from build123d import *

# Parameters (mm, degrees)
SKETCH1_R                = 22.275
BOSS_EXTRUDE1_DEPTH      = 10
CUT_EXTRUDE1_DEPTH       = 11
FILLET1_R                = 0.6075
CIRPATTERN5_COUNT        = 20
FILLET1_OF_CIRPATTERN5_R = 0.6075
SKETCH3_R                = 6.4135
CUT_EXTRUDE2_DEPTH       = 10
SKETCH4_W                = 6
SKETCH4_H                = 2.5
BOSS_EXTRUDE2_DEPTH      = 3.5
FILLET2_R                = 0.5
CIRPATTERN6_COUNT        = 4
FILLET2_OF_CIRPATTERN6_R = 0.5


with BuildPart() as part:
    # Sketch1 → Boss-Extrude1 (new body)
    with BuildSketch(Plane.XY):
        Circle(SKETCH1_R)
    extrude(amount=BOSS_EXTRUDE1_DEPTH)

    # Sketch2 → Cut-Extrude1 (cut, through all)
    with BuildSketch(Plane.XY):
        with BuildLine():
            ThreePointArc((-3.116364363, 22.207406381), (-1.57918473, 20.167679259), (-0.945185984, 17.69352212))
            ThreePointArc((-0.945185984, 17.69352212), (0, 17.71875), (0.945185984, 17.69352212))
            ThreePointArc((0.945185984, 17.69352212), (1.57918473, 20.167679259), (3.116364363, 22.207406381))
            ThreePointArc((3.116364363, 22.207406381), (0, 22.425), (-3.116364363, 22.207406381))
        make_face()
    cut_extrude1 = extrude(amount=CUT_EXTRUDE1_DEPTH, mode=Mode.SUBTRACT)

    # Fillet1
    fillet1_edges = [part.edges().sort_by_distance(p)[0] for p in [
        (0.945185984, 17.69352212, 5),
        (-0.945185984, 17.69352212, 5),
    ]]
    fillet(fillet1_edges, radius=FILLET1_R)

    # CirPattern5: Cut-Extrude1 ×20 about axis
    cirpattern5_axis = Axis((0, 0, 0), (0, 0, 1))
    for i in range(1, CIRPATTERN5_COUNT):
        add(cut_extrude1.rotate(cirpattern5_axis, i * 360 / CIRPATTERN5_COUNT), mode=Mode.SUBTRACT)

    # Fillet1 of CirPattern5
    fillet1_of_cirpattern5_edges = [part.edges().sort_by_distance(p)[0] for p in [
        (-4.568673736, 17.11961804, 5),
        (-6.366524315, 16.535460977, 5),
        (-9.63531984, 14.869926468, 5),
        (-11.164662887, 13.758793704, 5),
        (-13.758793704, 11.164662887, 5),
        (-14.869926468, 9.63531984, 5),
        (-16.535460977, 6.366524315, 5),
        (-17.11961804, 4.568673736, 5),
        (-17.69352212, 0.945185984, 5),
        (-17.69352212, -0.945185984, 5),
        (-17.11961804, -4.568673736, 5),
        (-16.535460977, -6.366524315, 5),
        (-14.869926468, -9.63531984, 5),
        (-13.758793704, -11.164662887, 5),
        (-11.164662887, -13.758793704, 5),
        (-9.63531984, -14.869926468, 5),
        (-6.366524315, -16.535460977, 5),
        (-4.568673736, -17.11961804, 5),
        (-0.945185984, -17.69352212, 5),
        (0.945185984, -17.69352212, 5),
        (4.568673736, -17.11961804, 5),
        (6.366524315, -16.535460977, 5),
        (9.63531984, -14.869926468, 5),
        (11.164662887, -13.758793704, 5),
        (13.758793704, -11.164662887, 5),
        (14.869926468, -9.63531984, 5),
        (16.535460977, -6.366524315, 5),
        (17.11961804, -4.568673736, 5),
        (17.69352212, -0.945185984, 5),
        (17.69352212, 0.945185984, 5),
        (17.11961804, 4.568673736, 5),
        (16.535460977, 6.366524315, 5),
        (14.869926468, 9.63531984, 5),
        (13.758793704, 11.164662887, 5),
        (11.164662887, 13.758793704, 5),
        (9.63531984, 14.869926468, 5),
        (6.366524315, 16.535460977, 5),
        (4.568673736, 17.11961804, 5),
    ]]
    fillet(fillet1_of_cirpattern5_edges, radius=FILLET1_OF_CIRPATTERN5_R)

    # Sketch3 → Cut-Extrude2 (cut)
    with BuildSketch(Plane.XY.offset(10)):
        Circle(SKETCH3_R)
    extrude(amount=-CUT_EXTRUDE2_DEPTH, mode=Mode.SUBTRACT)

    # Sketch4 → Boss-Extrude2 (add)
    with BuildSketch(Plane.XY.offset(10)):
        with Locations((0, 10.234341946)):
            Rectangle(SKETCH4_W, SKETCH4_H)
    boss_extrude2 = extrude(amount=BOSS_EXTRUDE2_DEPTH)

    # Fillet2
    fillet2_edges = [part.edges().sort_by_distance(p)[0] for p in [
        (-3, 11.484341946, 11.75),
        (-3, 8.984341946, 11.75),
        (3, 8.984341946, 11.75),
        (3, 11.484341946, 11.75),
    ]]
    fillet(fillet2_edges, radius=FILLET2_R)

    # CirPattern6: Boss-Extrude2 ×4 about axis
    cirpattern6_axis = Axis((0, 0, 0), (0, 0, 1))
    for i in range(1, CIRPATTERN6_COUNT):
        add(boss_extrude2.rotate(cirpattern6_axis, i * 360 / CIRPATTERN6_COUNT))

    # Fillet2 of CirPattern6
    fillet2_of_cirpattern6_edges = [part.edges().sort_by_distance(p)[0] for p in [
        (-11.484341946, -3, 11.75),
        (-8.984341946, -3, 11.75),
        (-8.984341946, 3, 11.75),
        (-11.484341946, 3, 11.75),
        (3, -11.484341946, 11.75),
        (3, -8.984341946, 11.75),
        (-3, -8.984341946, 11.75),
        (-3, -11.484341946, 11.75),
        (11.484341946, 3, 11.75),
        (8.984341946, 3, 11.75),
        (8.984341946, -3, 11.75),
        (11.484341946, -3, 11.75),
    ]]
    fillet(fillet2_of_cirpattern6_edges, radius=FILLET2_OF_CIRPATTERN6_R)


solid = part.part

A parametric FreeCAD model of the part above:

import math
import FreeCAD as App
import Part
import Sketcher
from FreeCAD import Vector
Q = App.Units.Quantity


def edges_at(feature, points):
    """Names of the edges that pass closest to the given points."""
    edges = feature.Shape.Edges
    near = lambda p: min(range(len(edges)), key=lambda i: edges[i].distToShape(Part.Vertex(*p))[0])
    return sorted({f"Edge{near(p) + 1}" for p in points})

doc = App.newDocument("Part")
body = doc.addObject("PartDesign::Body", "Body")

# Sketch on XY plane
sketch1 = body.newObject("Sketcher::SketchObject", "Sketch")
sketch1.AttachmentSupport = (doc.getObject("XY_Plane"), [""])
sketch1.MapMode = "FlatFace"
sketch1.addGeometry(Part.Circle(Vector(0, 0, 0), Vector(0, 0, 1), 22), False)
sketch1.addConstraint(Sketcher.Constraint("Coincident", 0, 3, -1, 1))
sketch1.addConstraint(Sketcher.Constraint("Diameter", 0, Q("44.55 mm")))
pad1 = body.newObject("PartDesign::Pad", "Pad")
pad1.Profile = sketch1
pad1.Length = 10

# Sketch on XY plane
sketch2 = body.newObject("Sketcher::SketchObject", "Sketch001")
sketch2.AttachmentSupport = (doc.getObject("XY_Plane"), [""])
sketch2.MapMode = "FlatFace"
sketch2.addGeometry(Part.ArcOfCircle(Part.Circle(Vector(-7.4, 17.3, 0), Vector(0, 0, 1), 6.5), math.radians(3), math.radians(48)), False)
sketch2.addGeometry(Part.ArcOfCircle(Part.Circle(Vector(0, 0, 0), Vector(0, 0, 1), 17.7), math.radians(86.94), math.radians(93.06)), False)
sketch2.addGeometry(Part.ArcOfCircle(Part.Circle(Vector(7.4, 17.3, 0), Vector(0, 0, 1), 6.5), math.radians(132), math.radians(177)), False)
sketch2.addGeometry(Part.ArcOfCircle(Part.Circle(Vector(0, 0, 0), Vector(0, 0, 1), 22.4), math.radians(82.01), math.radians(97.99)), False)
sketch2.addConstraint(Sketcher.Constraint("Coincident", 0, 1, 1, 2))
sketch2.addConstraint(Sketcher.Constraint("Coincident", 1, 1, 2, 2))
sketch2.addConstraint(Sketcher.Constraint("Coincident", 2, 1, 3, 1))
sketch2.addConstraint(Sketcher.Constraint("Coincident", 3, 2, 0, 2))
sketch2.addConstraint(Sketcher.Constraint("Coincident", 1, 3, -1, 1))
sketch2.addConstraint(Sketcher.Constraint("Coincident", 3, 3, -1, 1))
sketch2.addConstraint(Sketcher.Constraint("Equal", 0, 2))
sketch2.addConstraint(Sketcher.Constraint("Symmetric", 0, 3, 2, 3, -2))
sketch2.addConstraint(Sketcher.Constraint("Radius", 3, Q("22.425 mm")))
sketch2.addConstraint(Sketcher.Constraint("Radius", 1, Q("17.71875 mm")))
sketch2.addConstraint(Sketcher.Constraint("Radius", 0, Q("6.508893 mm")))
sketch2.addConstraint(Sketcher.Constraint("DistanceX", 0, 3, -1, 1, Q("7.444811 mm")))
sketch2.addConstraint(Sketcher.Constraint("DistanceY", 0, 3, 0, 1, Q("0.347209 mm")))
pocket1 = body.newObject("PartDesign::Pocket", "Pocket")
pocket1.Profile = sketch2
pocket1.Type = "ThroughAll"
pocket1.Reversed = True
doc.recompute()

fillet = body.newObject("PartDesign::Fillet", "Fillet")
fillet.Base = (pocket1, edges_at(pocket1, [(0.945, 17.694, 5), (-0.945, 17.694, 5)]))
fillet.Radius = 0.6075
doc.recompute()

polarpattern = body.newObject("PartDesign::PolarPattern", "PolarPattern")
polarpattern.Originals = [pocket1]
polarpattern.Axis = (doc.getObject("Z_Axis"), [""])
polarpattern.Angle = 360
polarpattern.Occurrences = 20
body.Tip = polarpattern
doc.recompute()

fillet2 = body.newObject("PartDesign::Fillet", "Fillet001")
fillet2.Base = (polarpattern, edges_at(polarpattern, [
    (-4.569, 17.12, 5),
    (-6.367, 16.535, 5),
    (-9.635, 14.87, 5),
    (-11.165, 13.759, 5),
    (-13.759, 11.165, 5),
    (-14.87, 9.635, 5),
    (-16.535, 6.367, 5),
    (-17.12, 4.569, 5),
    (-17.694, 0.945, 5),
    (-17.694, -0.945, 5),
    (-17.12, -4.569, 5),
    (-16.535, -6.367, 5),
    (-14.87, -9.635, 5),
    (-13.759, -11.165, 5),
    (-11.165, -13.759, 5),
    (-9.635, -14.87, 5),
    (-6.367, -16.535, 5),
    (-4.569, -17.12, 5),
    (-0.945, -17.694, 5),
    (0.945, -17.694, 5),
    (4.569, -17.12, 5),
    (6.367, -16.535, 5),
    (9.635, -14.87, 5),
    (11.165, -13.759, 5),
    (13.759, -11.165, 5),
    (14.87, -9.635, 5),
    (16.535, -6.367, 5),
    (17.12, -4.569, 5),
    (17.694, -0.945, 5),
    (17.694, 0.945, 5),
    (17.12, 4.569, 5),
    (16.535, 6.367, 5),
    (14.87, 9.635, 5),
    (13.759, 11.165, 5),
    (11.165, 13.759, 5),
    (9.635, 14.87, 5),
    (6.367, 16.535, 5),
    (4.569, 17.12, 5),
]))
fillet2.Radius = 0.6075

# Sketch on XY plane
sketch3 = body.newObject("Sketcher::SketchObject", "Sketch002")
sketch3.AttachmentSupport = (doc.getObject("XY_Plane"), [""])
sketch3.MapMode = "FlatFace"
sketch3.AttachmentOffset = App.Placement(Vector(0, 0, 10), App.Rotation())
sketch3.addGeometry(Part.Circle(Vector(0, 0, 0), Vector(0, 0, 1), 6), False)
sketch3.addConstraint(Sketcher.Constraint("Coincident", 0, 3, -1, 1))
sketch3.addConstraint(Sketcher.Constraint("Diameter", 0, Q("12.827 mm")))
pocket2 = body.newObject("PartDesign::Pocket", "Pocket001")
pocket2.Profile = sketch3
pocket2.Length = 10

# Sketch on XY plane
sketch4 = body.newObject("Sketcher::SketchObject", "Sketch003")
sketch4.AttachmentSupport = (doc.getObject("XY_Plane"), [""])
sketch4.MapMode = "FlatFace"
sketch4.AttachmentOffset = App.Placement(Vector(0, 0, 10), App.Rotation())
sketch4.addGeometry(Part.LineSegment(Vector(-3, 11.5, 0), Vector(-3, 9, 0)), False)
sketch4.addGeometry(Part.LineSegment(Vector(-3, 9, 0), Vector(3, 9, 0)), False)
sketch4.addGeometry(Part.LineSegment(Vector(3, 9, 0), Vector(3, 11.5, 0)), False)
sketch4.addGeometry(Part.LineSegment(Vector(3, 11.5, 0), Vector(-3, 11.5, 0)), False)
sketch4.addConstraint(Sketcher.Constraint("Coincident", 0, 2, 1, 1))
sketch4.addConstraint(Sketcher.Constraint("Coincident", 1, 2, 2, 1))
sketch4.addConstraint(Sketcher.Constraint("Coincident", 2, 2, 3, 1))
sketch4.addConstraint(Sketcher.Constraint("Coincident", 3, 2, 0, 1))
sketch4.addConstraint(Sketcher.Constraint("Vertical", 0))
sketch4.addConstraint(Sketcher.Constraint("Horizontal", 1))
sketch4.addConstraint(Sketcher.Constraint("Vertical", 2))
sketch4.addConstraint(Sketcher.Constraint("Horizontal", 3))
sketch4.addConstraint(Sketcher.Constraint("DistanceX", 1, 1, 1, 2, Q("6 mm")))
sketch4.addConstraint(Sketcher.Constraint("DistanceY", 0, 2, 0, 1, Q("2.5 mm")))
sketch4.addConstraint(Sketcher.Constraint("DistanceX", 0, 2, -1, 1, Q("3 mm")))
sketch4.addConstraint(Sketcher.Constraint("DistanceY", -1, 1, 0, 2, Q("8.984342 mm")))
pad2 = body.newObject("PartDesign::Pad", "Pad001")
pad2.Profile = sketch4
pad2.Length = 3.5
doc.recompute()

fillet3 = body.newObject("PartDesign::Fillet", "Fillet002")
fillet3.Base = (pad2, edges_at(pad2, [
    (-3, 11.484, 11.75),
    (-3, 8.984, 11.75),
    (3, 8.984, 11.75),
    (3, 11.484, 11.75),
]))
fillet3.Radius = 0.5
doc.recompute()

polarpattern2 = body.newObject("PartDesign::PolarPattern", "PolarPattern001")
polarpattern2.Originals = [pad2]
polarpattern2.Axis = (doc.getObject("Z_Axis"), [""])
polarpattern2.Angle = 360
polarpattern2.Occurrences = 4
body.Tip = polarpattern2
doc.recompute()

fillet4 = body.newObject("PartDesign::Fillet", "Fillet003")
fillet4.Base = (polarpattern2, edges_at(polarpattern2, [
    (-11.484, -3, 11.75),
    (-8.984, -3, 11.75),
    (-8.984, 3, 11.75),
    (-11.484, 3, 11.75),
    (3, -11.484, 11.75),
    (3, -8.984, 11.75),
    (-3, -8.984, 11.75),
    (-3, -11.484, 11.75),
    (11.484, 3, 11.75),
    (8.984, 3, 11.75),
    (8.984, -3, 11.75),
    (11.484, -3, 11.75),
]))
fillet4.Radius = 0.5

doc.recompute()
